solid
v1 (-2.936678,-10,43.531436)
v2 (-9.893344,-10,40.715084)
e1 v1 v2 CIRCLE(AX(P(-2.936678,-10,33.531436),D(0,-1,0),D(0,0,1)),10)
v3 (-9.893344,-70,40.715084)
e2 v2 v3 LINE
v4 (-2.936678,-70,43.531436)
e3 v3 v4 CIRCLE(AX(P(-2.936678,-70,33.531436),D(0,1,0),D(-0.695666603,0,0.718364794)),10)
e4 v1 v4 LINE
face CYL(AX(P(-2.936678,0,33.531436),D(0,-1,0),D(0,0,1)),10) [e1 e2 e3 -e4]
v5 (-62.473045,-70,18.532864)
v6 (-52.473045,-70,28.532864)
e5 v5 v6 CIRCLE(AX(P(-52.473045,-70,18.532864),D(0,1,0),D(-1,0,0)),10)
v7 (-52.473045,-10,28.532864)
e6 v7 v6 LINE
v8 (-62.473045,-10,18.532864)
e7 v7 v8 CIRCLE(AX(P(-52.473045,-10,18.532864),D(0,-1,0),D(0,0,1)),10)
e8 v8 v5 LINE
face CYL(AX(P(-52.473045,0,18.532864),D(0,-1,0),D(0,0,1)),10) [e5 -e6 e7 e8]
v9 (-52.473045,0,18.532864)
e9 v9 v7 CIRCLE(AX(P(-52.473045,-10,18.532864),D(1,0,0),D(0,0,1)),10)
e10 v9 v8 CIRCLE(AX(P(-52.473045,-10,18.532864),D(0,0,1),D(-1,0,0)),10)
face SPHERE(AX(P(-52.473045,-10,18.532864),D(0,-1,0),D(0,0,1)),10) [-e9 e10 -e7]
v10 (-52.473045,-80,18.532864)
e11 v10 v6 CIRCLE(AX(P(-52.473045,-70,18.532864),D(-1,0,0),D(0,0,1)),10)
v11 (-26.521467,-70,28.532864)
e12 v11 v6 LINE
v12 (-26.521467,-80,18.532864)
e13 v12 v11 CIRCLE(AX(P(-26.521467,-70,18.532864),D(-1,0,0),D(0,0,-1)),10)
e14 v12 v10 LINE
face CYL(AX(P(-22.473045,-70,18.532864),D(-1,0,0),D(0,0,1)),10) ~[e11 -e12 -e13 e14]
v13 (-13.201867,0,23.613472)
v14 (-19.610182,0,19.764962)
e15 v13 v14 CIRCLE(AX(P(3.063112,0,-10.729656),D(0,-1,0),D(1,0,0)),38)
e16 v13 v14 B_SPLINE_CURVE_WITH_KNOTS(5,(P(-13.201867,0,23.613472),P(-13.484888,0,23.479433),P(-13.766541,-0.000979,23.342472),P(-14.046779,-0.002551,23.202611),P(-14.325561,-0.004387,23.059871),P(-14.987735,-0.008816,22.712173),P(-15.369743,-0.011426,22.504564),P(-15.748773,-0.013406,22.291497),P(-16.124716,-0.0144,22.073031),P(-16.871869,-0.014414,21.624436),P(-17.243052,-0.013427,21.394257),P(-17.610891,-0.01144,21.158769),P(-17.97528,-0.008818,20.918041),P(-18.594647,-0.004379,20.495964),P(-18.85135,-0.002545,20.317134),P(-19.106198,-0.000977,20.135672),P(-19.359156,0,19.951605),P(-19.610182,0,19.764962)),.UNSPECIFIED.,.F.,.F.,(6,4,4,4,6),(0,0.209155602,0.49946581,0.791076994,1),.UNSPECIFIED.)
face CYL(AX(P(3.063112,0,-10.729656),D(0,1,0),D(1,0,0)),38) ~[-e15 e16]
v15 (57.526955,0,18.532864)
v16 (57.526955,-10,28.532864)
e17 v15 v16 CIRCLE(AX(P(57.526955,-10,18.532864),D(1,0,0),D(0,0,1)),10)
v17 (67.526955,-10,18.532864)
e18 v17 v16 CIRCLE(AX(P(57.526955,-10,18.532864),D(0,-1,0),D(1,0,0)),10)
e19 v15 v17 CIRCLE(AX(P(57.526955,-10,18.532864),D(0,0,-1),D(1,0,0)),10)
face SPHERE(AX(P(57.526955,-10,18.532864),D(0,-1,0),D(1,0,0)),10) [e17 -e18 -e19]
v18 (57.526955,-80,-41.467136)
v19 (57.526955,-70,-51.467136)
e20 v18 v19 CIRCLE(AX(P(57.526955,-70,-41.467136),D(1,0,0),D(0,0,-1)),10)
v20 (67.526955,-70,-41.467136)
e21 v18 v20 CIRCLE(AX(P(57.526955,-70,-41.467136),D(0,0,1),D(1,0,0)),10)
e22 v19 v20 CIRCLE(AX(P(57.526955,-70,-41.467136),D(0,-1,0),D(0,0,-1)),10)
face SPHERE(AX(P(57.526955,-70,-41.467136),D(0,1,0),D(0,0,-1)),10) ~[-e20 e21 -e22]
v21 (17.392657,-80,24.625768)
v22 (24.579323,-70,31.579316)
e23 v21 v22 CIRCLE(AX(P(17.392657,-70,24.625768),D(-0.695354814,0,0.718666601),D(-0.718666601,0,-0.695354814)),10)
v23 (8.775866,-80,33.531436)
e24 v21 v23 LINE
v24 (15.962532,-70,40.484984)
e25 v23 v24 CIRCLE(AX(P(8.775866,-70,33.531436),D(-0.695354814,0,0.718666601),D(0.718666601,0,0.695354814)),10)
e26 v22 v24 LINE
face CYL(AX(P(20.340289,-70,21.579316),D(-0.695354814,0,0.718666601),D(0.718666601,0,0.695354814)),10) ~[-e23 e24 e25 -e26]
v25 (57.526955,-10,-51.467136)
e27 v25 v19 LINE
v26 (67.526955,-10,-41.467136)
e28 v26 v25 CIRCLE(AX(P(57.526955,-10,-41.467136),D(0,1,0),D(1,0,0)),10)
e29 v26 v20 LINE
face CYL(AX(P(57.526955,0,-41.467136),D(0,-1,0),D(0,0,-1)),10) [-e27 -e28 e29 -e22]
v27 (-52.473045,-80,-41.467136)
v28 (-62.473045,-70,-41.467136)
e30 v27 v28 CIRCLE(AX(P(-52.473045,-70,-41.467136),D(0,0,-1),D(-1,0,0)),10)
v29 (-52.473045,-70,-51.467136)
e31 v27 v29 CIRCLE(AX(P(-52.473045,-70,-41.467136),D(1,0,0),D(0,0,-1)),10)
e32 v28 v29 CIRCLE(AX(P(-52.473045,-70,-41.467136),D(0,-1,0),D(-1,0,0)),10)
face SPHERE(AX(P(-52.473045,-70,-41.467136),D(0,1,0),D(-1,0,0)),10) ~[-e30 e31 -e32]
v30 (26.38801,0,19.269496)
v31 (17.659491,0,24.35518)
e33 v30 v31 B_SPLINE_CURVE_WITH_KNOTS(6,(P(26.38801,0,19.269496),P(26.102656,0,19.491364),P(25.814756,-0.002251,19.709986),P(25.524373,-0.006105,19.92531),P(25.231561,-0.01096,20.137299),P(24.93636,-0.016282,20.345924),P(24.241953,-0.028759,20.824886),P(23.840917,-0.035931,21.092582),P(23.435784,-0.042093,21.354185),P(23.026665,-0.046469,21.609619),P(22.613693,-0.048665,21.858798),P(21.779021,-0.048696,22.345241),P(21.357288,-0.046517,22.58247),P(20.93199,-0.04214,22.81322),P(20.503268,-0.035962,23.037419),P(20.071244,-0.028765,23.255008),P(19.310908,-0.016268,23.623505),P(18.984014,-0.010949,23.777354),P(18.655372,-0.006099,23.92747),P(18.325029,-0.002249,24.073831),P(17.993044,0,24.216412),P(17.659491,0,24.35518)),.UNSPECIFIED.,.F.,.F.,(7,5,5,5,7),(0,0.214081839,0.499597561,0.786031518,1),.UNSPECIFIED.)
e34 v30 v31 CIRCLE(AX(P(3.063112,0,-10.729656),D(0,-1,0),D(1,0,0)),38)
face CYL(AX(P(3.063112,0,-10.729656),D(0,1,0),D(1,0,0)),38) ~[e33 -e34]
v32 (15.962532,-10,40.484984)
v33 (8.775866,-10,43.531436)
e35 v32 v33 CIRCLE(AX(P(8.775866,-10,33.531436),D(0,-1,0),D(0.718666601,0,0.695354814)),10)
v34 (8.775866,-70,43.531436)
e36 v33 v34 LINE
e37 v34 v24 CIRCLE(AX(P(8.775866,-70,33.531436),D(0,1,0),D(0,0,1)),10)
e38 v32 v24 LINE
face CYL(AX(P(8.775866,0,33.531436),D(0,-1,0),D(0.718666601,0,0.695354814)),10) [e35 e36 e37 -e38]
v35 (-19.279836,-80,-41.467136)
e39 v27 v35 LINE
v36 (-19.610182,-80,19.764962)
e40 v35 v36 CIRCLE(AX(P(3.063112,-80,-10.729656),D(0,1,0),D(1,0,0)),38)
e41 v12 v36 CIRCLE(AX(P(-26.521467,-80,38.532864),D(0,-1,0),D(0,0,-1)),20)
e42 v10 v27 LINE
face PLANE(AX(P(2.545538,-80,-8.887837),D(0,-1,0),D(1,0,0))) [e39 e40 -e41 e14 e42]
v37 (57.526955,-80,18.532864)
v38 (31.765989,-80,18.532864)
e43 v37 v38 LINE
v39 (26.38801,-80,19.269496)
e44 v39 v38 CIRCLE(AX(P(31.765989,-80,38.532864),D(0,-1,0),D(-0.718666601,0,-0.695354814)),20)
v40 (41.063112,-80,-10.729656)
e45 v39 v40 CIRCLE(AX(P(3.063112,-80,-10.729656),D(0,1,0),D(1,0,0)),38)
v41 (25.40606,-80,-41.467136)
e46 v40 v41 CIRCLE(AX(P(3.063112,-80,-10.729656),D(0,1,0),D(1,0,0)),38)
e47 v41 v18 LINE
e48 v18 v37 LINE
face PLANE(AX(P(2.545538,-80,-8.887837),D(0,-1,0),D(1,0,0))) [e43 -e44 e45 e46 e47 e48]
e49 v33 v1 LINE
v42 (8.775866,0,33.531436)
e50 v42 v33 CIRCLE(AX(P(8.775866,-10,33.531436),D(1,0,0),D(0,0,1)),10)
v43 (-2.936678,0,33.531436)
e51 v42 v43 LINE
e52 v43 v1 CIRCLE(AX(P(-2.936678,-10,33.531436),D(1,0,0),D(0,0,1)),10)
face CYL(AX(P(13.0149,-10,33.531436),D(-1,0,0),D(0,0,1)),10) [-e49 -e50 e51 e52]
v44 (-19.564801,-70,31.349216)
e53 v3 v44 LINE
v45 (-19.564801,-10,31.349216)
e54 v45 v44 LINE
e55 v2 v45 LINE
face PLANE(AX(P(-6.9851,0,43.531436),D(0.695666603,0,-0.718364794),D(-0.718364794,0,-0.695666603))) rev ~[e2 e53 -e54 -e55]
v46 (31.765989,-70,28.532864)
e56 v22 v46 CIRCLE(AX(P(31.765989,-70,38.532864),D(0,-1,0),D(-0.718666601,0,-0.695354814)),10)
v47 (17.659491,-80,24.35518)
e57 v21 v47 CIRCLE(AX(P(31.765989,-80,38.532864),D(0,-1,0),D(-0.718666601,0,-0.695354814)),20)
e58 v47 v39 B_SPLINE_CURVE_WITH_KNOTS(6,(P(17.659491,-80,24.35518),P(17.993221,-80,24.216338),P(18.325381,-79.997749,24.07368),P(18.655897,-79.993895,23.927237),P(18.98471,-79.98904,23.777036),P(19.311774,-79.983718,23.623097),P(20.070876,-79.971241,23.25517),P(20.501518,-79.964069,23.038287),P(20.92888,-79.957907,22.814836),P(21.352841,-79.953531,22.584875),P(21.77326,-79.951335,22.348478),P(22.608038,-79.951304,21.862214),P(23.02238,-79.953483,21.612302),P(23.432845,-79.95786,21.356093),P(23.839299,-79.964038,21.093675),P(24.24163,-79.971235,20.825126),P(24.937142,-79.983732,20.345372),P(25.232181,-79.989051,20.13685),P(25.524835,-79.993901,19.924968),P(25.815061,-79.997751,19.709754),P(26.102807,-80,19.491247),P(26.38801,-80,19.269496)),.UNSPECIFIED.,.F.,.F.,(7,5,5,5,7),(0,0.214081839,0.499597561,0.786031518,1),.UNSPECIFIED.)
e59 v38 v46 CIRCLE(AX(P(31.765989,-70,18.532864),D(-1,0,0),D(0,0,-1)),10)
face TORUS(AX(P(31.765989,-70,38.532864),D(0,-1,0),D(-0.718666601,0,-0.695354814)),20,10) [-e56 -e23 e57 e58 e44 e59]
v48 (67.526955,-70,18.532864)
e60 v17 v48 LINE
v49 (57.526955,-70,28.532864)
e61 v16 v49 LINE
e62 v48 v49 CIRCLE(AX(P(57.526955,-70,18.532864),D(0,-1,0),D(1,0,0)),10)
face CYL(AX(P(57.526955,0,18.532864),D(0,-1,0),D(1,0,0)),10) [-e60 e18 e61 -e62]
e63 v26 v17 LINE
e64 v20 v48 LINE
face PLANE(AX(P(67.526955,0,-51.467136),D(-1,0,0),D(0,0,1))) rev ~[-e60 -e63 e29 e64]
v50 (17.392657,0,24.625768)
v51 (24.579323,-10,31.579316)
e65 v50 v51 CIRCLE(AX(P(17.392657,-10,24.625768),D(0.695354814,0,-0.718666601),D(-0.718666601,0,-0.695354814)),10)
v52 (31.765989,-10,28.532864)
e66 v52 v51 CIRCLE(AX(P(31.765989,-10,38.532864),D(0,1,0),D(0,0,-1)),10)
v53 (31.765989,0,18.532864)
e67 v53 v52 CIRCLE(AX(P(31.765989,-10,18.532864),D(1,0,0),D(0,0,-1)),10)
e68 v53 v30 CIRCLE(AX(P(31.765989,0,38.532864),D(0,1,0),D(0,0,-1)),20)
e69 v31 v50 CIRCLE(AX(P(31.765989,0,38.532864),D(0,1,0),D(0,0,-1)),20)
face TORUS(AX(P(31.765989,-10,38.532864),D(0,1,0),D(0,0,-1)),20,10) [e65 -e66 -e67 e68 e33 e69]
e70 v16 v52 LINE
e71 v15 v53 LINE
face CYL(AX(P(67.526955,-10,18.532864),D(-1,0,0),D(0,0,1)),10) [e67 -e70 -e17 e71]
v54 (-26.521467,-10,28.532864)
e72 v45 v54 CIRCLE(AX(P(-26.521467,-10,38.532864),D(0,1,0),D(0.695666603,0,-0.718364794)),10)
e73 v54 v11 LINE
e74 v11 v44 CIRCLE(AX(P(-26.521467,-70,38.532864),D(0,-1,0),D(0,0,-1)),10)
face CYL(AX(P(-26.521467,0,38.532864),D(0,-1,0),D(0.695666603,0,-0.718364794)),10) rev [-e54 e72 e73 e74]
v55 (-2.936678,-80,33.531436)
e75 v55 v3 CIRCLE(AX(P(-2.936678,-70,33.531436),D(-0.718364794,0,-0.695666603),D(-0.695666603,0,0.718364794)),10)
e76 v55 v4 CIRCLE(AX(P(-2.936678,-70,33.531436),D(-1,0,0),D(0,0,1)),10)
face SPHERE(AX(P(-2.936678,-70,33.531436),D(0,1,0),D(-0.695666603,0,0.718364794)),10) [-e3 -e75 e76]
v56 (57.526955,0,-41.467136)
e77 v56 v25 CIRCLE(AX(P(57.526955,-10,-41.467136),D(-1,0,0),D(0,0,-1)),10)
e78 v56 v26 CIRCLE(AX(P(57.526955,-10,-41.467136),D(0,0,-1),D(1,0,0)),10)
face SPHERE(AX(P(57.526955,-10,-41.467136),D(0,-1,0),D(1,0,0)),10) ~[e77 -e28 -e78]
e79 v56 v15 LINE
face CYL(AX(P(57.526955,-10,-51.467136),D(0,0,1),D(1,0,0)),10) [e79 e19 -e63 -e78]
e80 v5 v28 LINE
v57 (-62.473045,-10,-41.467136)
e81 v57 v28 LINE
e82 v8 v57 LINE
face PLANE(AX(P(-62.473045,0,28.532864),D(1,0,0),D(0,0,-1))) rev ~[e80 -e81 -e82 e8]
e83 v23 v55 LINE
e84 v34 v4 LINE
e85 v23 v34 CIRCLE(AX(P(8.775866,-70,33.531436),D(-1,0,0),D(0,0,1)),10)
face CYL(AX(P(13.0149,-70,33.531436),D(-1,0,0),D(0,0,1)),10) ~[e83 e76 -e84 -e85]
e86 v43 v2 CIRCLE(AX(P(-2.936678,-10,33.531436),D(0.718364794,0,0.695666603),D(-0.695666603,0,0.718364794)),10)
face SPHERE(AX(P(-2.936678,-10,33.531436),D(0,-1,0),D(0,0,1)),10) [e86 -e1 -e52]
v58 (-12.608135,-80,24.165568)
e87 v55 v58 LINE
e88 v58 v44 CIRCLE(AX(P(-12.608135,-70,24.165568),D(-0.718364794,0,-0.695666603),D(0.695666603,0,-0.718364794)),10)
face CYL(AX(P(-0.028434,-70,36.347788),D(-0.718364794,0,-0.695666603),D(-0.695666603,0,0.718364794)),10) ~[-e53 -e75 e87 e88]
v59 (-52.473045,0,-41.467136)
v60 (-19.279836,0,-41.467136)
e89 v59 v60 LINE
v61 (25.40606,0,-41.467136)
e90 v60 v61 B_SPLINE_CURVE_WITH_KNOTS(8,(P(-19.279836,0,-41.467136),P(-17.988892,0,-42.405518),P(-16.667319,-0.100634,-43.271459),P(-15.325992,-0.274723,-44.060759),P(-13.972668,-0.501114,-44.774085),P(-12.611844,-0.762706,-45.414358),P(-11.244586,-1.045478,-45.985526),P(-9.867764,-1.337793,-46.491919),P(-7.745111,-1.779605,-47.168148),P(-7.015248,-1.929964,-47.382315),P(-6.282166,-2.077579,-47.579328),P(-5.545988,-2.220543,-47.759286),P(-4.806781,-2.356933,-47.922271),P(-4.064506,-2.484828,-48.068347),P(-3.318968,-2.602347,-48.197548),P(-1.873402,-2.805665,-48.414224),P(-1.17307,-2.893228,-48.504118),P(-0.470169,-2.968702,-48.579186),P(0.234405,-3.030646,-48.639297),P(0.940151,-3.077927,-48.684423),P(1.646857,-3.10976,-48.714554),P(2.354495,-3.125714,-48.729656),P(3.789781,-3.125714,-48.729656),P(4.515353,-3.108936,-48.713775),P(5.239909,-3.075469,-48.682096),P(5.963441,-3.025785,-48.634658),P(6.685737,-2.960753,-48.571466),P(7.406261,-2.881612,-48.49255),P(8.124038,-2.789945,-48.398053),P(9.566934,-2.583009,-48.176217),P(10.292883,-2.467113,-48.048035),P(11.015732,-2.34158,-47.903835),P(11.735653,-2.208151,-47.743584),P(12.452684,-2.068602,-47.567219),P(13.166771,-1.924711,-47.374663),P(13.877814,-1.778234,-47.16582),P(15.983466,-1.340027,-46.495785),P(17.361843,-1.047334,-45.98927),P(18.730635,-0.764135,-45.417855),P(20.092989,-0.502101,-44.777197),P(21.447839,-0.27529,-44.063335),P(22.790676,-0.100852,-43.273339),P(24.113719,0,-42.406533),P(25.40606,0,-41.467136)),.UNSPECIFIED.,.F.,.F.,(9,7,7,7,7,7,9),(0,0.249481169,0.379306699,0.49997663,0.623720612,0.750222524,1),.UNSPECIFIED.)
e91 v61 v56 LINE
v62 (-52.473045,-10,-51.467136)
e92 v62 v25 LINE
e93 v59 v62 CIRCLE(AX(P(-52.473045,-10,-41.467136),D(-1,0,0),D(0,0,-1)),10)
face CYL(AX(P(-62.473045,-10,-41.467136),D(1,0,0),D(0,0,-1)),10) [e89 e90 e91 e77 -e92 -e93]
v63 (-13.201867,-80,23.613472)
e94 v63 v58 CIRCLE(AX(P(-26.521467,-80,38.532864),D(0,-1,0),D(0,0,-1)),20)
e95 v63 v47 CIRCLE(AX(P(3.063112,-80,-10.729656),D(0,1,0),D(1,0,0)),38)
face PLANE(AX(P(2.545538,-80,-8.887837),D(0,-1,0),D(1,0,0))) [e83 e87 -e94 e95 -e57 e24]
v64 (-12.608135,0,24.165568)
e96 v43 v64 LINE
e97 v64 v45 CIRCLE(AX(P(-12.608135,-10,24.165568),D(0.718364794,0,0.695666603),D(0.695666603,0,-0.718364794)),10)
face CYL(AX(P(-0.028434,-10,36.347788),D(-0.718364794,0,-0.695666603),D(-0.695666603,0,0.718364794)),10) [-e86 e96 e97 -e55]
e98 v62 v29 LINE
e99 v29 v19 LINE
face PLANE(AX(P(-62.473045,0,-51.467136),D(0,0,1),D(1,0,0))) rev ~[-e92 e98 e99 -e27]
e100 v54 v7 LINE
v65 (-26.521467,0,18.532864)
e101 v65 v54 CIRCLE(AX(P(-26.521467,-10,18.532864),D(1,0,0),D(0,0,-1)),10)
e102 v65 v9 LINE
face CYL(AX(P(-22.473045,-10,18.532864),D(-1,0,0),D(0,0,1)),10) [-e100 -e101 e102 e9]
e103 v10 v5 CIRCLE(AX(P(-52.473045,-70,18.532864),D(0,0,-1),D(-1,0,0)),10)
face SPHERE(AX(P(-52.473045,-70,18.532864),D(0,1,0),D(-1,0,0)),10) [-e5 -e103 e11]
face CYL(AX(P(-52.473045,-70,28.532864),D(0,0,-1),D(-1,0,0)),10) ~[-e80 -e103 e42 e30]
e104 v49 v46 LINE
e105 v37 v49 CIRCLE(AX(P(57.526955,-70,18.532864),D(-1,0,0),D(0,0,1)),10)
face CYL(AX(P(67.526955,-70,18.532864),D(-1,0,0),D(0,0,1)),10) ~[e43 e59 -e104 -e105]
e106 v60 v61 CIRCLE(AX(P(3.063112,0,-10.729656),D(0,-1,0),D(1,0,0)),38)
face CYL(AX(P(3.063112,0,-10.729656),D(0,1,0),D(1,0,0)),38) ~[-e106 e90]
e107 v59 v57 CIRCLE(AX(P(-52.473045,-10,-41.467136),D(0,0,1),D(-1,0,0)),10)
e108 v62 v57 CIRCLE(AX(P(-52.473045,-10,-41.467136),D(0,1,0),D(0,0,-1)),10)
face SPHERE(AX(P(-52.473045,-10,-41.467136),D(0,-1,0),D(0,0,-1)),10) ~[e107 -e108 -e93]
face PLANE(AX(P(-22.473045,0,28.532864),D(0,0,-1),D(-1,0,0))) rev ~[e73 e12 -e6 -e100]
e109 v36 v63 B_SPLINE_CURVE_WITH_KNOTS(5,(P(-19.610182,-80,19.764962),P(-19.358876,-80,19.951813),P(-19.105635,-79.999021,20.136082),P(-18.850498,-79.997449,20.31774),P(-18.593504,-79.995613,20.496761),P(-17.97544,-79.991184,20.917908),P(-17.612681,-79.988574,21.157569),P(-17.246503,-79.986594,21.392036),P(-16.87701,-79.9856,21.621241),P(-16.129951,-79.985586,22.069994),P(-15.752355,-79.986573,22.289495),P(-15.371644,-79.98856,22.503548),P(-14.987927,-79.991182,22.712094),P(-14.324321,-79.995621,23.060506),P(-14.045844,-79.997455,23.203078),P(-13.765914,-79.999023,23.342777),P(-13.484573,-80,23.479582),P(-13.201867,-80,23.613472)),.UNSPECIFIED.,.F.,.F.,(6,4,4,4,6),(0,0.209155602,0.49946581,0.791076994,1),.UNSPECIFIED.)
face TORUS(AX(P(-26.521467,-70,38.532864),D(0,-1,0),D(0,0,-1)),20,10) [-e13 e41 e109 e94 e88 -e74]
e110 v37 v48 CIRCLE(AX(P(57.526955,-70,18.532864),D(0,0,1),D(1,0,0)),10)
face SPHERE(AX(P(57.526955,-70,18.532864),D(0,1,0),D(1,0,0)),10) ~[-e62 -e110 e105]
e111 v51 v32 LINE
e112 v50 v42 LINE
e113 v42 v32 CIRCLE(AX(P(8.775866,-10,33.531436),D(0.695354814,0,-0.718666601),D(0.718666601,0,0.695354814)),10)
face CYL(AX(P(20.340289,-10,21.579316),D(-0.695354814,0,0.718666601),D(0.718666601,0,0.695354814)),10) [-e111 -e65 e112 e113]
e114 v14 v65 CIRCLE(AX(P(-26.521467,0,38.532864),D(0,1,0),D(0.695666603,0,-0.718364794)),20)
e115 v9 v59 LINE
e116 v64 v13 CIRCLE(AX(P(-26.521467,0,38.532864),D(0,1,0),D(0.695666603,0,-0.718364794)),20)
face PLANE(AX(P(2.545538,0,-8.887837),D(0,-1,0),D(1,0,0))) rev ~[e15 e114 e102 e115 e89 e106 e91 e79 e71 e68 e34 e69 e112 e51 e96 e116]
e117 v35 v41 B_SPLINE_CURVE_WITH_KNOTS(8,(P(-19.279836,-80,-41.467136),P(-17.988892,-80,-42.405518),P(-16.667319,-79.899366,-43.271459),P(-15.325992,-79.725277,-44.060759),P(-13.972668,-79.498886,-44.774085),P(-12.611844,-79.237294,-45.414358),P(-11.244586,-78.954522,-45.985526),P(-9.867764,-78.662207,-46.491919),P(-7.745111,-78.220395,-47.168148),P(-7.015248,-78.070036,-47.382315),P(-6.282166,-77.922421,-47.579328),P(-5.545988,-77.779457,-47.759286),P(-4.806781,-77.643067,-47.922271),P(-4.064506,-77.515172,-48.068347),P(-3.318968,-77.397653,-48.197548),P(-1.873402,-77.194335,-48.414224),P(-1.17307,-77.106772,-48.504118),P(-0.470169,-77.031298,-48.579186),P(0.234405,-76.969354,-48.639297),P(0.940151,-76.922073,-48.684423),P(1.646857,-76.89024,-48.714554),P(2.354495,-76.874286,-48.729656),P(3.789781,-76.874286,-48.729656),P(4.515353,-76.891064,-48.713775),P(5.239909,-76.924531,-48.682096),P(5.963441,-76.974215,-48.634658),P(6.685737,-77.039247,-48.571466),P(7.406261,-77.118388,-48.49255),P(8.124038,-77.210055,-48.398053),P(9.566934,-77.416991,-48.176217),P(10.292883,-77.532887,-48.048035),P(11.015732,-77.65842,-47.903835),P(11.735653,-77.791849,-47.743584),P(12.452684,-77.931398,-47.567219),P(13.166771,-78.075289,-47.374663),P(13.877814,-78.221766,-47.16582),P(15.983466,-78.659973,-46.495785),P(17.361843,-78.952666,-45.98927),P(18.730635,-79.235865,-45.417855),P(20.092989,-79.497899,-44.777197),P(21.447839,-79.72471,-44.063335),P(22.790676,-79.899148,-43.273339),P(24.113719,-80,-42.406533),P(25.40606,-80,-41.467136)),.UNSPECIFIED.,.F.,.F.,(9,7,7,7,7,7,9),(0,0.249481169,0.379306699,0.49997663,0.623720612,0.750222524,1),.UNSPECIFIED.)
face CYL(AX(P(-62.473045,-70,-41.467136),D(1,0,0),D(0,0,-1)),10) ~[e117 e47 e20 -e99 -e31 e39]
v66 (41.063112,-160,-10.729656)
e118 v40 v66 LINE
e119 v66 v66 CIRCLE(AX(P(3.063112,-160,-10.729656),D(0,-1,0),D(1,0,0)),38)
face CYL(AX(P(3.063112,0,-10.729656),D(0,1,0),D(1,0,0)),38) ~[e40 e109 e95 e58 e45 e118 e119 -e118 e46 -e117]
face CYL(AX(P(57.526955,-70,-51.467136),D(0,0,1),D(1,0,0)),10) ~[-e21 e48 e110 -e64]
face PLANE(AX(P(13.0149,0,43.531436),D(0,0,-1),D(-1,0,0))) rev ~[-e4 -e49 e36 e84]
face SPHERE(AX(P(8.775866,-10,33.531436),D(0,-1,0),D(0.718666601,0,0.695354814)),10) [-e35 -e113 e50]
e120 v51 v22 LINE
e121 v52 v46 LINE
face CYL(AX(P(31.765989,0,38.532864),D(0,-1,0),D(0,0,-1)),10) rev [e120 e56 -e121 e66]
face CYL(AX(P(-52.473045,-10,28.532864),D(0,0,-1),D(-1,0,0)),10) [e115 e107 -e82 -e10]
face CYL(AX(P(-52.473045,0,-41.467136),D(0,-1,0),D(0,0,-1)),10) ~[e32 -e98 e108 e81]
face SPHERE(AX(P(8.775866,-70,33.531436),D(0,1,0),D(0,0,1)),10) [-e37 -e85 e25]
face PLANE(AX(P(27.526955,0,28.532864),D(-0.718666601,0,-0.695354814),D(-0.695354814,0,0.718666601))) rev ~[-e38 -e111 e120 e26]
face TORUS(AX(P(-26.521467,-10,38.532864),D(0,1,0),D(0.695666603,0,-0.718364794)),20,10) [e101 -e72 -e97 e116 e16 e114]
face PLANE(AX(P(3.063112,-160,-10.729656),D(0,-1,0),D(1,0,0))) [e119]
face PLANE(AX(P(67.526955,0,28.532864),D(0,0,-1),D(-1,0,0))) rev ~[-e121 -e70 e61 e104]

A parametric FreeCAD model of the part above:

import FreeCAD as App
import Part
import Sketcher

V = App.Vector
Q = App.Units.Quantity

doc = App.newDocument("Part")
body = doc.addObject("PartDesign::Body", "Body")

# Sketch on XZ plane
sketch1 = doc.addObject("Sketcher::SketchObject", "Sketch")
body.addObject(sketch1)
sketch1.AttachmentSupport = (doc.XZ_Plane, [""])
sketch1.MapMode = "FlatFace"
sketch1.addGeometry([
    Part.LineSegment(V(-62, -51, 0), V(68, -51, 0)),  # 0
    Part.LineSegment(V(68, -51, 0), V(68, 29, 0)),  # 1
    Part.LineSegment(V(68, 29, 0), V(28, 29, 0)),  # 2
    Part.LineSegment(V(28, 29, 0), V(13, 44, 0)),  # 3
    Part.LineSegment(V(13, 44, 0), V(-7, 44, 0)),  # 4
    Part.LineSegment(V(-7, 44, 0), V(-22, 29, 0)),  # 5
    Part.LineSegment(V(-22, 29, 0), V(-62, 29, 0)),  # 6
    Part.LineSegment(V(-62, 29, 0), V(-62, -51, 0)),  # 7
], False)
sketch1.addConstraint([
    Sketcher.Constraint("Coincident", 0, 2, 1, 1),
    Sketcher.Constraint("Coincident", 1, 2, 2, 1),
    Sketcher.Constraint("Coincident", 2, 2, 3, 1),
    Sketcher.Constraint("Coincident", 3, 2, 4, 1),
    Sketcher.Constraint("Coincident", 4, 2, 5, 1),
    Sketcher.Constraint("Coincident", 5, 2, 6, 1),
    Sketcher.Constraint("Coincident", 6, 2, 7, 1),
    Sketcher.Constraint("Coincident", 7, 2, 0, 1),
    Sketcher.Constraint("Horizontal", 0),
    Sketcher.Constraint("Vertical", 1),
    Sketcher.Constraint("Horizontal", 2),
    Sketcher.Constraint("Horizontal", 4),
    Sketcher.Constraint("Horizontal", 6),
    Sketcher.Constraint("Vertical", 7),
    Sketcher.Constraint("Horizontal", 2, 2, 5, 2),
    Sketcher.Constraint("Equal", 2, 6),
    Sketcher.Constraint("DistanceX", 0, 1, 0, 2, Q("130 mm")),
    Sketcher.Constraint("DistanceX", 2, 2, 2, 1, Q("40 mm")),
    Sketcher.Constraint("DistanceX", 4, 2, 4, 1, Q("20 mm")),
    Sketcher.Constraint("DistanceY", 1, 1, 1, 2, Q("80 mm")),
    Sketcher.Constraint("Distance", 3, Q("20.87 mm")),
    Sketcher.Constraint("Distance", 5, Q("21.56 mm")),
    Sketcher.Constraint("DistanceX", -1, 1, 3, 2, Q("13.0149 mm")),
    Sketcher.Constraint("DistanceY", 0, 2, -1, 1, Q("51.467136 mm")),
])
pad1 = doc.addObject("PartDesign::Pad", "Pad")
body.addObject(pad1)
pad1.Profile = sketch1
pad1.Length = 80
doc.recompute()

fillet = doc.addObject("PartDesign::Fillet", "Fillet")
body.addObject(fillet)
fillet.Base = (pad1, ["Edge1"])
fillet.UseAllEdges = True
fillet.Radius = 10

# Sketch on XZ plane
sketch2 = doc.addObject("Sketcher::SketchObject", "Sketch001")
body.addObject(sketch2)
sketch2.AttachmentSupport = (doc.XZ_Plane, [""])
sketch2.MapMode = "FlatFace"
sketch2.addGeometry(Part.Circle(V(3, -11, 0), V(0, 0, 1), 38), False)
sketch2.addConstraint([
    Sketcher.Constraint("Diameter", 0, Q("76 mm")),
    Sketcher.Constraint("DistanceX", -1, 1, 0, 3, Q("3.063112 mm")),
    Sketcher.Constraint("DistanceY", 0, 3, -1, 1, Q("10.729656 mm")),
])
pad2 = doc.addObject("PartDesign::Pad", "Pad001")
body.addObject(pad2)
pad2.Profile = sketch2
pad2.Length = 160

doc.recompute()
